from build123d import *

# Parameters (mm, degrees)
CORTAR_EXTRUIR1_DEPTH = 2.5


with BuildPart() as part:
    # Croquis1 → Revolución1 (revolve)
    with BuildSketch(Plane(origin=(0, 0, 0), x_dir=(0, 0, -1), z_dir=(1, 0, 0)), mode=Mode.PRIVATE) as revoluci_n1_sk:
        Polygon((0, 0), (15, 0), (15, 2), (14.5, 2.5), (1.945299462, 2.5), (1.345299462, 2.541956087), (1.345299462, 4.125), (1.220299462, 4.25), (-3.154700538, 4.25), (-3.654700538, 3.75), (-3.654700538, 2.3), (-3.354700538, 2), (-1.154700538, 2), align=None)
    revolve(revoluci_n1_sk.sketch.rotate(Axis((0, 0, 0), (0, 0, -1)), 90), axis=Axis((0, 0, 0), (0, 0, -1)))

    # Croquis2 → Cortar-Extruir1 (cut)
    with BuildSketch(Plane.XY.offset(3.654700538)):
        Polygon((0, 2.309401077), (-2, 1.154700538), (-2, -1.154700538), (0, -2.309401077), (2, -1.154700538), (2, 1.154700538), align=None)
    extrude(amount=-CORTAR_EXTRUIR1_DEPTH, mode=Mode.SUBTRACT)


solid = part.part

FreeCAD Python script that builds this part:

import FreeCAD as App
import Part
import Sketcher
Q = App.Units.Quantity

doc = App.newDocument("Part")
params = doc.addObject("Spreadsheet::Sheet", "Params")
for row, (alias, value) in enumerate([
    ("sketch1_width", "2 mm"),
    ("sketch1_height", "15 mm"),
    ("sketch1_height2", "2.2 mm"),
    ("sketch1_width2", "1.45 mm"),
    ("revolution_angle", "360 deg"),
    ("pocket1_length", "2.5 mm"),
], start=1):
    params.set(f"A{row}", alias)
    params.set(f"B{row}", "=" + value)
    params.setAlias(f"B{row}", alias)

body = doc.addObject("PartDesign::Body", "Body")

sketch1 = doc.addObject("Sketcher::SketchObject", "Sketch")
body.addObject(sketch1)
sketch1.AttachmentSupport = (doc.YZ_Plane, [""])
sketch1.MapMode = "FlatFace"
sketch1.addGeometry(Part.LineSegment(App.Vector(0, 0, 0), App.Vector(0, -15, 0)), False)
sketch1.addGeometry(Part.LineSegment(App.Vector(0, -15, 0), App.Vector(2, -15, 0)), False)
sketch1.addGeometry(Part.LineSegment(App.Vector(2, -15, 0), App.Vector(2.5, -14.5, 0)), False)
sketch1.addGeometry(Part.LineSegment(App.Vector(2.5, -14.5, 0), App.Vector(2.5, -1.945299, 0)), False)
sketch1.addGeometry(Part.LineSegment(App.Vector(2.5, -1.945299, 0), App.Vector(2.541956, -1.345299, 0)), False)
sketch1.addGeometry(Part.LineSegment(App.Vector(2.541956, -1.345299, 0), App.Vector(4.125, -1.345299, 0)), False)
sketch1.addGeometry(Part.LineSegment(App.Vector(4.125, -1.345299, 0), App.Vector(4.25, -1.220299, 0)), False)
sketch1.addGeometry(Part.LineSegment(App.Vector(4.25, -1.220299, 0), App.Vector(4.25, 3.154701, 0)), False)
sketch1.addGeometry(Part.LineSegment(App.Vector(4.25, 3.154701, 0), App.Vector(3.75, 3.654701, 0)), False)
sketch1.addGeometry(Part.LineSegment(App.Vector(3.75, 3.654701, 0), App.Vector(2.3, 3.654701, 0)), False)
sketch1.addGeometry(Part.LineSegment(App.Vector(2.3, 3.654701, 0), App.Vector(2, 3.354701, 0)), False)
sketch1.addGeometry(Part.LineSegment(App.Vector(2, 3.354701, 0), App.Vector(2, 1.154701, 0)), False)
sketch1.addGeometry(Part.LineSegment(App.Vector(2, 1.154701, 0), App.Vector(0, 0, 0)), False)
sketch1.addConstraint(Sketcher.Constraint("Coincident", 0, 2, 1, 1))
sketch1.addConstraint(Sketcher.Constraint("Coincident", 1, 2, 2, 1))
sketch1.addConstraint(Sketcher.Constraint("Coincident", 2, 2, 3, 1))
sketch1.addConstraint(Sketcher.Constraint("Coincident", 3, 2, 4, 1))
sketch1.addConstraint(Sketcher.Constraint("Coincident", 4, 2, 5, 1))
sketch1.addConstraint(Sketcher.Constraint("Coincident", 5, 2, 6, 1))
sketch1.addConstraint(Sketcher.Constraint("Coincident", 6, 2, 7, 1))
sketch1.addConstraint(Sketcher.Constraint("Coincident", 7, 2, 8, 1))
sketch1.addConstraint(Sketcher.Constraint("Coincident", 8, 2, 9, 1))
sketch1.addConstraint(Sketcher.Constraint("Coincident", 9, 2, 10, 1))
sketch1.addConstraint(Sketcher.Constraint("Coincident", 10, 2, 11, 1))
sketch1.addConstraint(Sketcher.Constraint("Coincident", 11, 2, 12, 1))
sketch1.addConstraint(Sketcher.Constraint("Coincident", 12, 2, 0, 1))
sketch1.addConstraint(Sketcher.Constraint("Vertical", 0))
sketch1.addConstraint(Sketcher.Constraint("Horizontal", 1))
sketch1.addConstraint(Sketcher.Constraint("Vertical", 3))
sketch1.addConstraint(Sketcher.Constraint("Horizontal", 5))
sketch1.addConstraint(Sketcher.Constraint("Vertical", 7))
sketch1.addConstraint(Sketcher.Constraint("Horizontal", 9))
sketch1.addConstraint(Sketcher.Constraint("Vertical", 11))
sketch1.addConstraint(Sketcher.Constraint("Coincident", 12, 2, -1, 1))
sketch1.addConstraint(Sketcher.Constraint("Parallel", 2, 6))
sketch1.addConstraint(Sketcher.Constraint("Perpendicular", 6, 8))
sketch1.addConstraint(Sketcher.Constraint("Perpendicular", 8, 10))
sketch1.addConstraint(Sketcher.Constraint("Vertical", 1, 2, 10, 2))
sketch1.addConstraint(Sketcher.Constraint("Equal", 2, 8))
sketch1.addConstraint(Sketcher.Constraint("DistanceX", 1, 1, 1, 2, 2.0))
sketch1.addConstraint(Sketcher.Constraint("DistanceY", 0, 2, 0, 1, 15.0))
sketch1.addConstraint(Sketcher.Constraint("Angle", 2, Q("45 deg")))
sketch1.addConstraint(Sketcher.Constraint("Angle", 4, Q("86 deg")))
sketch1.addConstraint(Sketcher.Constraint("Angle", 12, Q("-150 deg")))
sketch1.addConstraint(Sketcher.Constraint("DistanceY", 11, 2, 11, 1, 2.2))
sketch1.addConstraint(Sketcher.Constraint("DistanceY", 5, 2, 8, 2, 5.0))
sketch1.addConstraint(Sketcher.Constraint("DistanceY", 11, 2, 7, 2, 2.0))
sketch1.addConstraint(Sketcher.Constraint("DistanceX", 9, 2, 9, 1, 1.45))
sketch1.addConstraint(Sketcher.Constraint("DistanceX", -1, 1, 2, 2, 2.5))
sketch1.addConstraint(Sketcher.Constraint("DistanceY", 3, 2, 4, 2, 0.6))
sketch1.addConstraint(Sketcher.Constraint("DistanceY", 7, 1, 7, 2, 4.375))
sketch1.setExpression("Constraints[26]", "Params.sketch1_width")
sketch1.setExpression("Constraints[27]", "Params.sketch1_height")
sketch1.setExpression("Constraints[31]", "Params.sketch1_height2")
sketch1.setExpression("Constraints[34]", "Params.sketch1_width2")
revolution = doc.addObject("PartDesign::Revolution", "Revolution")
body.addObject(revolution)
revolution.Profile = sketch1
revolution.ReferenceAxis = (sketch1, ["V_Axis"])
revolution.setExpression("Angle", "Params.revolution_angle")

sketch2 = doc.addObject("Sketcher::SketchObject", "Sketch001")
body.addObject(sketch2)
sketch2.AttachmentSupport = (doc.XY_Plane, [""])
sketch2.MapMode = "FlatFace"
sketch2.AttachmentOffset = App.Placement(App.Vector(0, 0, 3.654701), App.Rotation())
sketch2.addGeometry(Part.LineSegment(App.Vector(0, 2.309401, 0), App.Vector(-2, 1.154701, 0)), False)
sketch2.addGeometry(Part.LineSegment(App.Vector(-2, 1.154701, 0), App.Vector(-2, -1.154701, 0)), False)
sketch2.addGeometry(Part.LineSegment(App.Vector(-2, -1.154701, 0), App.Vector(0, -2.309401, 0)), False)
sketch2.addGeometry(Part.LineSegment(App.Vector(0, -2.309401, 0), App.Vector(2, -1.154701, 0)), False)
sketch2.addGeometry(Part.LineSegment(App.Vector(2, -1.154701, 0), App.Vector(2, 1.154701, 0)), False)
sketch2.addGeometry(Part.LineSegment(App.Vector(2, 1.154701, 0), App.Vector(0, 2.309401, 0)), False)
sketch2.addConstraint(Sketcher.Constraint("Coincident", 0, 2, 1, 1))
sketch2.addConstraint(Sketcher.Constraint("Coincident", 1, 2, 2, 1))
sketch2.addConstraint(Sketcher.Constraint("Coincident", 2, 2, 3, 1))
sketch2.addConstraint(Sketcher.Constraint("Coincident", 3, 2, 4, 1))
sketch2.addConstraint(Sketcher.Constraint("Coincident", 4, 2, 5, 1))
sketch2.addConstraint(Sketcher.Constraint("Coincident", 5, 2, 0, 1))
sketch2.addConstraint(Sketcher.Constraint("Vertical", 1))
sketch2.addConstraint(Sketcher.Constraint("Vertical", 4))
sketch2.addConstraint(Sketcher.Constraint("Symmetric", 0, 2, 3, 2, -1, 1))
sketch2.addConstraint(Sketcher.Constraint("Symmetric", 2, 2, 5, 2, -1, 1))
sketch2.addConstraint(Sketcher.Constraint("PointOnObject", 2, 2, -2))
sketch2.addConstraint(Sketcher.Constraint("Parallel", 2, 5))
sketch2.addConstraint(Sketcher.Constraint("Horizontal", 1, 2, 3, 2))
sketch2.addConstraint(Sketcher.Constraint("Angle", 0, Q("-150 deg")))
sketch2.addConstraint(Sketcher.Constraint("DistanceX", 0, 2, -1, 1, 2.0))
sketch2.addConstraint(Sketcher.Constraint("DistanceY", 1, 2, 1, 1, 2.309401))
pocket1 = doc.addObject("PartDesign::Pocket", "Pocket")
body.addObject(pocket1)
pocket1.Profile = sketch2
pocket1.setExpression("Length", "Params.pocket1_length")

doc.recompute()
